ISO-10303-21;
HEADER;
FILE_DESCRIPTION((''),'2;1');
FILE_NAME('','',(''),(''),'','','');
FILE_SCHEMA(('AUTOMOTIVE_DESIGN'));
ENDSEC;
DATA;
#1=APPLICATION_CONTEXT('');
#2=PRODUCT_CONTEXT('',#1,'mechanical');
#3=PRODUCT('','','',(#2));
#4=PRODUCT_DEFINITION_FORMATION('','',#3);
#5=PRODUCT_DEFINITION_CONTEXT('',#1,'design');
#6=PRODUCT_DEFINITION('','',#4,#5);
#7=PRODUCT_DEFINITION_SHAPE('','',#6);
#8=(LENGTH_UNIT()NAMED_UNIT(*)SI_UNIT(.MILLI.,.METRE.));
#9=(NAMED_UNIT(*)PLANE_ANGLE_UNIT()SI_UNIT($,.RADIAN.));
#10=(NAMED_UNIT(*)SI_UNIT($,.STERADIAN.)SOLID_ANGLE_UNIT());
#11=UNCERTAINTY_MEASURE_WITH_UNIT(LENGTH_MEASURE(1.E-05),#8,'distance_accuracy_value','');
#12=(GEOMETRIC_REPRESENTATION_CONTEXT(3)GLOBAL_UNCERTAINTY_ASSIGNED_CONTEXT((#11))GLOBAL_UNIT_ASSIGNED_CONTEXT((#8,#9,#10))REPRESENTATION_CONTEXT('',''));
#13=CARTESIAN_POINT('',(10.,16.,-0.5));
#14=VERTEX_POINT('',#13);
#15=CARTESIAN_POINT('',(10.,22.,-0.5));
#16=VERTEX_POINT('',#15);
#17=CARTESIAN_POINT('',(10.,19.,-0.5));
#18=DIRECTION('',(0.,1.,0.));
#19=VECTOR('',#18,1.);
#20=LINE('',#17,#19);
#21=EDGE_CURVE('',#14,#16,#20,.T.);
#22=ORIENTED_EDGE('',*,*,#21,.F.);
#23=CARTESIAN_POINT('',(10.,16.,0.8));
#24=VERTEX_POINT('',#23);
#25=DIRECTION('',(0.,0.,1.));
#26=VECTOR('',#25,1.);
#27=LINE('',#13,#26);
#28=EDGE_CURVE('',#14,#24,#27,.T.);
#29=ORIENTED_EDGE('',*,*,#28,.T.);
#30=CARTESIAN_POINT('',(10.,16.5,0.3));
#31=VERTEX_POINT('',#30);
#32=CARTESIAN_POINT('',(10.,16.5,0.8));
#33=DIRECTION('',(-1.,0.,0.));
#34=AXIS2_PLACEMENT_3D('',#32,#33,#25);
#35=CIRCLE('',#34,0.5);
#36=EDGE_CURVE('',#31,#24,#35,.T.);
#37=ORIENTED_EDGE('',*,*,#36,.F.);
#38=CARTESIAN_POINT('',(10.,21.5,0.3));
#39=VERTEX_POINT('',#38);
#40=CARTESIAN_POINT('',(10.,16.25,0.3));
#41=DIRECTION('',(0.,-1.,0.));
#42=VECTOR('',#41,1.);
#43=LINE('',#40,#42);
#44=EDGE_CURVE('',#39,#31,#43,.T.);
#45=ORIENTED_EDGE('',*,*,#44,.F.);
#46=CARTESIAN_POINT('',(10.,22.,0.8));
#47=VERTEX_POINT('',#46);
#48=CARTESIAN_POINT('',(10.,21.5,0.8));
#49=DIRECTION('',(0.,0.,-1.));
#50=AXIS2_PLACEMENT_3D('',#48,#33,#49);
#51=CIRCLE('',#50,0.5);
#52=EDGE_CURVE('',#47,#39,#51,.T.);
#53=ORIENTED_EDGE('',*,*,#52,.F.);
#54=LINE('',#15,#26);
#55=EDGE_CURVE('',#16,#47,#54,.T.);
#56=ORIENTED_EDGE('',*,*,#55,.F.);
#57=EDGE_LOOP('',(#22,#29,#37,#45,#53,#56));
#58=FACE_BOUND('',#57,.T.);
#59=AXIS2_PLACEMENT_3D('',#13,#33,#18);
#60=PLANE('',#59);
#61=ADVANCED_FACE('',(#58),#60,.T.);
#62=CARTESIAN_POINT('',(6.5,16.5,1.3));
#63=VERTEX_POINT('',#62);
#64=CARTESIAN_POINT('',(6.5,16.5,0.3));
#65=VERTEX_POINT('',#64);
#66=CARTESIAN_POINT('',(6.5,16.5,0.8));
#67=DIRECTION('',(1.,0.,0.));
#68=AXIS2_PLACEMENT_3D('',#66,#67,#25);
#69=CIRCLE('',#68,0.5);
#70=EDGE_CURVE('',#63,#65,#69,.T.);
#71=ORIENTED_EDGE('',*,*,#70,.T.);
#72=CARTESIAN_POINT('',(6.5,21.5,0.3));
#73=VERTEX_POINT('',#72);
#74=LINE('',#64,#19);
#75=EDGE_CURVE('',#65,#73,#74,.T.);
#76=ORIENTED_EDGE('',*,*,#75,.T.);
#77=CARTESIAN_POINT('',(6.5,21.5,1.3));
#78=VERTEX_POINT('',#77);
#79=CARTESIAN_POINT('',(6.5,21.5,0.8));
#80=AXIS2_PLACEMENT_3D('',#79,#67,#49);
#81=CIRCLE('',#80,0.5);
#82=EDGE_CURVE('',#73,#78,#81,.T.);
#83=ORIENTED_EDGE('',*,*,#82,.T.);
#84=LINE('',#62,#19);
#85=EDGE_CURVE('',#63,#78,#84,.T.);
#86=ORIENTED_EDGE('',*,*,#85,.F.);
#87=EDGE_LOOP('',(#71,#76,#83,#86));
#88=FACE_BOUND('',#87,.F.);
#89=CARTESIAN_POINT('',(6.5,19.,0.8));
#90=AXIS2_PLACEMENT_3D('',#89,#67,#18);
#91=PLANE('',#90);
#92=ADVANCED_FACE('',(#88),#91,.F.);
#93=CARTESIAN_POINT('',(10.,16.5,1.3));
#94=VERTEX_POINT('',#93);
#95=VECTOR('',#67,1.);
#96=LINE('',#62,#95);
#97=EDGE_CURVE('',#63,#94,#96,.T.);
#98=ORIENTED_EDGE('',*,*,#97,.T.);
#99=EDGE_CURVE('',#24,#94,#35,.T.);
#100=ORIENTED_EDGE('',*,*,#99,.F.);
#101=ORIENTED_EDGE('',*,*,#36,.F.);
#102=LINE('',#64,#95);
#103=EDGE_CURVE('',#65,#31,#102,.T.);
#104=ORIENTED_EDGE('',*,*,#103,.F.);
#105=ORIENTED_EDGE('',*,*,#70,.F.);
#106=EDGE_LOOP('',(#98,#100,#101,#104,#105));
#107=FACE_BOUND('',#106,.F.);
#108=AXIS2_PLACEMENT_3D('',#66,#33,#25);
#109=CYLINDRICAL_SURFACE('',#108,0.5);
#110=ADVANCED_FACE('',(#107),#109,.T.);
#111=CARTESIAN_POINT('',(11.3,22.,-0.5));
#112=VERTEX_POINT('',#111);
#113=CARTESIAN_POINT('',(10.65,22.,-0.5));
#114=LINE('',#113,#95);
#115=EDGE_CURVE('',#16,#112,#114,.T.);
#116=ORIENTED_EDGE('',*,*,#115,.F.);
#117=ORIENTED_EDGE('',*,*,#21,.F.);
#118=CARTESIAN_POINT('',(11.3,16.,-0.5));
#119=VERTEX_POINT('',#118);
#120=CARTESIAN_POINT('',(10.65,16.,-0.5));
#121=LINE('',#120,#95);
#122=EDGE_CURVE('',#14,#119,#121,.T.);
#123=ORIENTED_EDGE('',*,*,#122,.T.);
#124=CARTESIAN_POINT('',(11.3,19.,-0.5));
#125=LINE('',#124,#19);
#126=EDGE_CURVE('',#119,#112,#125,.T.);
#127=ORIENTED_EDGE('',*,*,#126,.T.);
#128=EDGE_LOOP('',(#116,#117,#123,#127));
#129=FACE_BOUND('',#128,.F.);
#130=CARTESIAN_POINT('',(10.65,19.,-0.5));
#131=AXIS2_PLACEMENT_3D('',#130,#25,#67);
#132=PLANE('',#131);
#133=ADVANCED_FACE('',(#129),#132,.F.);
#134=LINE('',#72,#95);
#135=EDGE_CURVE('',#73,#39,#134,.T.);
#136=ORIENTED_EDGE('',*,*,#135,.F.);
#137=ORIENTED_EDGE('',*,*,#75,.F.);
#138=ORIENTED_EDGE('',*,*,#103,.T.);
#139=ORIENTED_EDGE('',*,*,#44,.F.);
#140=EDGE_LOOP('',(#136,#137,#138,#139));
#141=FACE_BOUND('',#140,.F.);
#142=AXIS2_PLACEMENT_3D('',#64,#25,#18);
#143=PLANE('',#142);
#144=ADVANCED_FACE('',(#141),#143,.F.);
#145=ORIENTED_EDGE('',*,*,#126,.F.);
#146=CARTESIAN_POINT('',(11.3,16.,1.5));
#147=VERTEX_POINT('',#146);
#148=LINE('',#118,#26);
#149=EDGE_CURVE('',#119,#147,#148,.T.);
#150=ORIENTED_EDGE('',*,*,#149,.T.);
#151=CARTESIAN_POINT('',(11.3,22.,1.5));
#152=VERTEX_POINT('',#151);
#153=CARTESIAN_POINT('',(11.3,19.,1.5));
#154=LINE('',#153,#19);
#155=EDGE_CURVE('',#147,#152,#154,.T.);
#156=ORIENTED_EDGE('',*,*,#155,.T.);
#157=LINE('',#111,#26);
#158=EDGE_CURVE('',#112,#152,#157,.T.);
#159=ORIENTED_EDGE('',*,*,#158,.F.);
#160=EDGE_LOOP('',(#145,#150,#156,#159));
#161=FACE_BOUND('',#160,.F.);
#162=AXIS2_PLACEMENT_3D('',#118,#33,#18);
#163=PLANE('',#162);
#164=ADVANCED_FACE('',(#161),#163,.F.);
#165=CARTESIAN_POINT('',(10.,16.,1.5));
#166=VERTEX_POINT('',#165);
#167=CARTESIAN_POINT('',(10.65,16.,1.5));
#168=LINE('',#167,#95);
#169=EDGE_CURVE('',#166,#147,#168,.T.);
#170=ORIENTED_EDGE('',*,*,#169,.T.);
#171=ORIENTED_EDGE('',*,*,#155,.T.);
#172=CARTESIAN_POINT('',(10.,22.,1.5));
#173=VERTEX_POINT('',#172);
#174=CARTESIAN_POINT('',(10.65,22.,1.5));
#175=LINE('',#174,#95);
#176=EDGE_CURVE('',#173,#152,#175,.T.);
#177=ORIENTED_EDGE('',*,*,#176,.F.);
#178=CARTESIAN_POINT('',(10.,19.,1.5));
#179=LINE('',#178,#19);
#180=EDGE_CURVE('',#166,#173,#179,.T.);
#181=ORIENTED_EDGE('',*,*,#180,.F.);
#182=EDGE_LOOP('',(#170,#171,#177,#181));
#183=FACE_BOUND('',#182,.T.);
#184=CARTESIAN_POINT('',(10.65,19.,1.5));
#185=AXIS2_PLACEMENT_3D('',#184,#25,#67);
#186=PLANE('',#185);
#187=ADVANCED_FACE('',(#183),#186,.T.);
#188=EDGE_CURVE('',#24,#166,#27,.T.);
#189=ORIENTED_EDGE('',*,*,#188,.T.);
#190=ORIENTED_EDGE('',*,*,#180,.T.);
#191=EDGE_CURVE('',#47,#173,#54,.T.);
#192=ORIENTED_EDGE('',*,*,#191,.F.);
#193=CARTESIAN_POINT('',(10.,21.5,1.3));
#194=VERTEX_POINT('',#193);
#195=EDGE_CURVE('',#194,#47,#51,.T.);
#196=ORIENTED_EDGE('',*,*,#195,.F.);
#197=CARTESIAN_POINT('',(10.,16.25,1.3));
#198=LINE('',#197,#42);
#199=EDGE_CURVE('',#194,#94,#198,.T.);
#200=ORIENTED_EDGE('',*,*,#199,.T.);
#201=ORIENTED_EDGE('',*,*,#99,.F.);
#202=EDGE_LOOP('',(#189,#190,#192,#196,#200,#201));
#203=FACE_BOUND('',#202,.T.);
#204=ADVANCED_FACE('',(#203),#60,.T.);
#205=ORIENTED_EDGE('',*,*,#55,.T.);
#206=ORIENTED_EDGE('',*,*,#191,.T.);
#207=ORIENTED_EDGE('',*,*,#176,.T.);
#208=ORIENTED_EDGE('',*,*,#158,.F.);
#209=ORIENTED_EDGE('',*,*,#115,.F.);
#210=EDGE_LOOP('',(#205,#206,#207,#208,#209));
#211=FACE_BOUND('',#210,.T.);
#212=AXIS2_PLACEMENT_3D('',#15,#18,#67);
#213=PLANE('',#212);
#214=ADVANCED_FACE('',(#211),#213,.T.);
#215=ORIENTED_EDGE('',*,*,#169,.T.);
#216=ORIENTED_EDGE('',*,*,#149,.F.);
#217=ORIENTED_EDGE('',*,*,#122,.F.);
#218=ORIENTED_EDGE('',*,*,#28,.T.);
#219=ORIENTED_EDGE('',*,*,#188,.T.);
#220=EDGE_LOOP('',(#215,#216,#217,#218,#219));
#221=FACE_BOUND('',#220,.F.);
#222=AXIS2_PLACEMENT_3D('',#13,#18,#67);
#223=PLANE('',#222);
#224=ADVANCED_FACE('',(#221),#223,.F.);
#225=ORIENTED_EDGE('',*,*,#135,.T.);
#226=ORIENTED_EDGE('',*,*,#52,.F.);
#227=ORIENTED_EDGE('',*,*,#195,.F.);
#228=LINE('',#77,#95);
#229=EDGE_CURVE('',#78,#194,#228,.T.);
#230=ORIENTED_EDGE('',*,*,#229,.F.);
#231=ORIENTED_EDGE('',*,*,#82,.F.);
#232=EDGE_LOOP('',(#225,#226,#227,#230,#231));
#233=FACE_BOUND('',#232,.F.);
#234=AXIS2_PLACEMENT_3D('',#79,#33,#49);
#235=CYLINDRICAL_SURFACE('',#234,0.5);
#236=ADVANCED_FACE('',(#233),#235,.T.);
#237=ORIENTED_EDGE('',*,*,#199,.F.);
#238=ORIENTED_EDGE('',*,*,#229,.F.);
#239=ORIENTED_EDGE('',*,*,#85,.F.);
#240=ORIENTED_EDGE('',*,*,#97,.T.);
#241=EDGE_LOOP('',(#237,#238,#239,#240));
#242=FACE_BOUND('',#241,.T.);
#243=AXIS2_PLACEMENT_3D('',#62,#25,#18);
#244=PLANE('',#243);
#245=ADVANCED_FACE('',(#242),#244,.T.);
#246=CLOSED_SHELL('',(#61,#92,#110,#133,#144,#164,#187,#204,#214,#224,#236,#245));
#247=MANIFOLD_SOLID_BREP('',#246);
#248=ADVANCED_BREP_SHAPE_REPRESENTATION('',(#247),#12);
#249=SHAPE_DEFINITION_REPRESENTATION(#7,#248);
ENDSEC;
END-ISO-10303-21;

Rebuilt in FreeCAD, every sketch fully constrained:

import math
import FreeCAD as App
import Part
import Sketcher

doc = App.newDocument("Part")
body = doc.addObject("PartDesign::Body", "Body")

# Sketch on XY plane
sketch1 = body.newObject("Sketcher::SketchObject", "Sketch")
sketch1.AttachmentSupport = (doc.getObject("XY_Plane"), [""])
sketch1.MapMode = "FlatFace"
sketch1.AttachmentOffset = App.Placement(App.Vector(0, 0, 0.5), App.Rotation())
sketch1.addGeometry([
    Part.LineSegment(App.Vector(0, 22, 0), App.Vector(0, 16, 0)),
    Part.LineSegment(App.Vector(0, 16, 0), App.Vector(1.3, 16, 0)),
    Part.LineSegment(App.Vector(1.3, 16, 0), App.Vector(1.3, 22, 0)),
    Part.LineSegment(App.Vector(1.3, 22, 0), App.Vector(0, 22, 0)),
], False)
sketch1.addConstraint([
    Sketcher.Constraint("Coincident", 0, 2, 1, 1),
    Sketcher.Constraint("Coincident", 1, 2, 2, 1),
    Sketcher.Constraint("Coincident", 2, 2, 3, 1),
    Sketcher.Constraint("Coincident", 3, 2, 0, 1),
    Sketcher.Constraint("Vertical", 0),
    Sketcher.Constraint("Horizontal", 1),
    Sketcher.Constraint("Vertical", 2),
    Sketcher.Constraint("Horizontal", 3),
    Sketcher.Constraint("PointOnObject", 0, 2, -2),
    Sketcher.Constraint("DistanceY", 0, 2, 0, 1, 6.0),
    Sketcher.Constraint("DistanceX", 1, 1, 1, 2, 1.3),
    Sketcher.Constraint("DistanceY", -1, 1, 0, 2, 16.0),
])
pad1 = body.newObject("PartDesign::Pad", "Pad")
pad1.Profile = sketch1
pad1.Length = 2
body2 = doc.addObject("PartDesign::Body", "Body001")

# Sketch on YZ plane
sketch2 = body2.newObject("Sketcher::SketchObject", "Sketch001")
sketch2.AttachmentSupport = (doc.getObject("YZ_Plane001"), [""])
sketch2.MapMode = "FlatFace"
sketch2.addGeometry([
    Part.ArcOfCircle(Part.Circle(App.Vector(14, -1.5, 0), App.Vector(0, 0, 1), 0.5), math.radians(90), math.radians(270)),
    Part.LineSegment(App.Vector(14, -2, 0), App.Vector(19, -2, 0)),
    Part.ArcOfCircle(Part.Circle(App.Vector(19, -1.5, 0), App.Vector(0, 0, 1), 0.5), math.radians(-90), math.radians(90)),
    Part.LineSegment(App.Vector(19, -1, 0), App.Vector(14, -1, 0)),
], False)
sketch2.addConstraint([
    Sketcher.Constraint("Tangent", 0, 2, 1, 1),
    Sketcher.Constraint("Tangent", 1, 2, 2, 1),
    Sketcher.Constraint("Tangent", 2, 2, 3, 1),
    Sketcher.Constraint("Tangent", 3, 2, 0, 1),
    Sketcher.Constraint("Horizontal", 1),
    Sketcher.Constraint("Horizontal", 3),
    Sketcher.Constraint("Radius", 0, 0.5),
    Sketcher.Constraint("DistanceX", 1, 1, 1, 2, 5.0),
    Sketcher.Constraint("DistanceX", -1, 1, 0, 3, 14.0),
    Sketcher.Constraint("DistanceY", 0, 2, -1, 1, 2.0),
])
pad2 = body2.newObject("PartDesign::Pad", "Pad001")
pad2.Profile = sketch2
pad2.Length = 4
body3 = doc.addObject("PartDesign::Body", "Body002")
doc.recompute()

body2.Placement = App.Placement(App.Vector(-3.5, 2.5, 3.3), App.Rotation(App.Vector(0, 0, 1), 0))
boolean = body3.newObject("PartDesign::Boolean", "Boolean")
boolean.Type = "Fuse"
boolean.addObjects([body2])
doc.recompute()

boolean2 = body3.newObject("PartDesign::Boolean", "Boolean001")
boolean2.Type = "Fuse"
boolean2.addObjects([body])
body4 = doc.addObject("PartDesign::Body", "Body003")
doc.recompute()

body3.Placement = App.Placement(App.Vector(10, 0, -1), App.Rotation(App.Vector(0, 0, 1), 0))
boolean3 = body4.newObject("PartDesign::Boolean", "Boolean002")
boolean3.Type = "Fuse"
boolean3.addObjects([body3])

doc.recompute()
